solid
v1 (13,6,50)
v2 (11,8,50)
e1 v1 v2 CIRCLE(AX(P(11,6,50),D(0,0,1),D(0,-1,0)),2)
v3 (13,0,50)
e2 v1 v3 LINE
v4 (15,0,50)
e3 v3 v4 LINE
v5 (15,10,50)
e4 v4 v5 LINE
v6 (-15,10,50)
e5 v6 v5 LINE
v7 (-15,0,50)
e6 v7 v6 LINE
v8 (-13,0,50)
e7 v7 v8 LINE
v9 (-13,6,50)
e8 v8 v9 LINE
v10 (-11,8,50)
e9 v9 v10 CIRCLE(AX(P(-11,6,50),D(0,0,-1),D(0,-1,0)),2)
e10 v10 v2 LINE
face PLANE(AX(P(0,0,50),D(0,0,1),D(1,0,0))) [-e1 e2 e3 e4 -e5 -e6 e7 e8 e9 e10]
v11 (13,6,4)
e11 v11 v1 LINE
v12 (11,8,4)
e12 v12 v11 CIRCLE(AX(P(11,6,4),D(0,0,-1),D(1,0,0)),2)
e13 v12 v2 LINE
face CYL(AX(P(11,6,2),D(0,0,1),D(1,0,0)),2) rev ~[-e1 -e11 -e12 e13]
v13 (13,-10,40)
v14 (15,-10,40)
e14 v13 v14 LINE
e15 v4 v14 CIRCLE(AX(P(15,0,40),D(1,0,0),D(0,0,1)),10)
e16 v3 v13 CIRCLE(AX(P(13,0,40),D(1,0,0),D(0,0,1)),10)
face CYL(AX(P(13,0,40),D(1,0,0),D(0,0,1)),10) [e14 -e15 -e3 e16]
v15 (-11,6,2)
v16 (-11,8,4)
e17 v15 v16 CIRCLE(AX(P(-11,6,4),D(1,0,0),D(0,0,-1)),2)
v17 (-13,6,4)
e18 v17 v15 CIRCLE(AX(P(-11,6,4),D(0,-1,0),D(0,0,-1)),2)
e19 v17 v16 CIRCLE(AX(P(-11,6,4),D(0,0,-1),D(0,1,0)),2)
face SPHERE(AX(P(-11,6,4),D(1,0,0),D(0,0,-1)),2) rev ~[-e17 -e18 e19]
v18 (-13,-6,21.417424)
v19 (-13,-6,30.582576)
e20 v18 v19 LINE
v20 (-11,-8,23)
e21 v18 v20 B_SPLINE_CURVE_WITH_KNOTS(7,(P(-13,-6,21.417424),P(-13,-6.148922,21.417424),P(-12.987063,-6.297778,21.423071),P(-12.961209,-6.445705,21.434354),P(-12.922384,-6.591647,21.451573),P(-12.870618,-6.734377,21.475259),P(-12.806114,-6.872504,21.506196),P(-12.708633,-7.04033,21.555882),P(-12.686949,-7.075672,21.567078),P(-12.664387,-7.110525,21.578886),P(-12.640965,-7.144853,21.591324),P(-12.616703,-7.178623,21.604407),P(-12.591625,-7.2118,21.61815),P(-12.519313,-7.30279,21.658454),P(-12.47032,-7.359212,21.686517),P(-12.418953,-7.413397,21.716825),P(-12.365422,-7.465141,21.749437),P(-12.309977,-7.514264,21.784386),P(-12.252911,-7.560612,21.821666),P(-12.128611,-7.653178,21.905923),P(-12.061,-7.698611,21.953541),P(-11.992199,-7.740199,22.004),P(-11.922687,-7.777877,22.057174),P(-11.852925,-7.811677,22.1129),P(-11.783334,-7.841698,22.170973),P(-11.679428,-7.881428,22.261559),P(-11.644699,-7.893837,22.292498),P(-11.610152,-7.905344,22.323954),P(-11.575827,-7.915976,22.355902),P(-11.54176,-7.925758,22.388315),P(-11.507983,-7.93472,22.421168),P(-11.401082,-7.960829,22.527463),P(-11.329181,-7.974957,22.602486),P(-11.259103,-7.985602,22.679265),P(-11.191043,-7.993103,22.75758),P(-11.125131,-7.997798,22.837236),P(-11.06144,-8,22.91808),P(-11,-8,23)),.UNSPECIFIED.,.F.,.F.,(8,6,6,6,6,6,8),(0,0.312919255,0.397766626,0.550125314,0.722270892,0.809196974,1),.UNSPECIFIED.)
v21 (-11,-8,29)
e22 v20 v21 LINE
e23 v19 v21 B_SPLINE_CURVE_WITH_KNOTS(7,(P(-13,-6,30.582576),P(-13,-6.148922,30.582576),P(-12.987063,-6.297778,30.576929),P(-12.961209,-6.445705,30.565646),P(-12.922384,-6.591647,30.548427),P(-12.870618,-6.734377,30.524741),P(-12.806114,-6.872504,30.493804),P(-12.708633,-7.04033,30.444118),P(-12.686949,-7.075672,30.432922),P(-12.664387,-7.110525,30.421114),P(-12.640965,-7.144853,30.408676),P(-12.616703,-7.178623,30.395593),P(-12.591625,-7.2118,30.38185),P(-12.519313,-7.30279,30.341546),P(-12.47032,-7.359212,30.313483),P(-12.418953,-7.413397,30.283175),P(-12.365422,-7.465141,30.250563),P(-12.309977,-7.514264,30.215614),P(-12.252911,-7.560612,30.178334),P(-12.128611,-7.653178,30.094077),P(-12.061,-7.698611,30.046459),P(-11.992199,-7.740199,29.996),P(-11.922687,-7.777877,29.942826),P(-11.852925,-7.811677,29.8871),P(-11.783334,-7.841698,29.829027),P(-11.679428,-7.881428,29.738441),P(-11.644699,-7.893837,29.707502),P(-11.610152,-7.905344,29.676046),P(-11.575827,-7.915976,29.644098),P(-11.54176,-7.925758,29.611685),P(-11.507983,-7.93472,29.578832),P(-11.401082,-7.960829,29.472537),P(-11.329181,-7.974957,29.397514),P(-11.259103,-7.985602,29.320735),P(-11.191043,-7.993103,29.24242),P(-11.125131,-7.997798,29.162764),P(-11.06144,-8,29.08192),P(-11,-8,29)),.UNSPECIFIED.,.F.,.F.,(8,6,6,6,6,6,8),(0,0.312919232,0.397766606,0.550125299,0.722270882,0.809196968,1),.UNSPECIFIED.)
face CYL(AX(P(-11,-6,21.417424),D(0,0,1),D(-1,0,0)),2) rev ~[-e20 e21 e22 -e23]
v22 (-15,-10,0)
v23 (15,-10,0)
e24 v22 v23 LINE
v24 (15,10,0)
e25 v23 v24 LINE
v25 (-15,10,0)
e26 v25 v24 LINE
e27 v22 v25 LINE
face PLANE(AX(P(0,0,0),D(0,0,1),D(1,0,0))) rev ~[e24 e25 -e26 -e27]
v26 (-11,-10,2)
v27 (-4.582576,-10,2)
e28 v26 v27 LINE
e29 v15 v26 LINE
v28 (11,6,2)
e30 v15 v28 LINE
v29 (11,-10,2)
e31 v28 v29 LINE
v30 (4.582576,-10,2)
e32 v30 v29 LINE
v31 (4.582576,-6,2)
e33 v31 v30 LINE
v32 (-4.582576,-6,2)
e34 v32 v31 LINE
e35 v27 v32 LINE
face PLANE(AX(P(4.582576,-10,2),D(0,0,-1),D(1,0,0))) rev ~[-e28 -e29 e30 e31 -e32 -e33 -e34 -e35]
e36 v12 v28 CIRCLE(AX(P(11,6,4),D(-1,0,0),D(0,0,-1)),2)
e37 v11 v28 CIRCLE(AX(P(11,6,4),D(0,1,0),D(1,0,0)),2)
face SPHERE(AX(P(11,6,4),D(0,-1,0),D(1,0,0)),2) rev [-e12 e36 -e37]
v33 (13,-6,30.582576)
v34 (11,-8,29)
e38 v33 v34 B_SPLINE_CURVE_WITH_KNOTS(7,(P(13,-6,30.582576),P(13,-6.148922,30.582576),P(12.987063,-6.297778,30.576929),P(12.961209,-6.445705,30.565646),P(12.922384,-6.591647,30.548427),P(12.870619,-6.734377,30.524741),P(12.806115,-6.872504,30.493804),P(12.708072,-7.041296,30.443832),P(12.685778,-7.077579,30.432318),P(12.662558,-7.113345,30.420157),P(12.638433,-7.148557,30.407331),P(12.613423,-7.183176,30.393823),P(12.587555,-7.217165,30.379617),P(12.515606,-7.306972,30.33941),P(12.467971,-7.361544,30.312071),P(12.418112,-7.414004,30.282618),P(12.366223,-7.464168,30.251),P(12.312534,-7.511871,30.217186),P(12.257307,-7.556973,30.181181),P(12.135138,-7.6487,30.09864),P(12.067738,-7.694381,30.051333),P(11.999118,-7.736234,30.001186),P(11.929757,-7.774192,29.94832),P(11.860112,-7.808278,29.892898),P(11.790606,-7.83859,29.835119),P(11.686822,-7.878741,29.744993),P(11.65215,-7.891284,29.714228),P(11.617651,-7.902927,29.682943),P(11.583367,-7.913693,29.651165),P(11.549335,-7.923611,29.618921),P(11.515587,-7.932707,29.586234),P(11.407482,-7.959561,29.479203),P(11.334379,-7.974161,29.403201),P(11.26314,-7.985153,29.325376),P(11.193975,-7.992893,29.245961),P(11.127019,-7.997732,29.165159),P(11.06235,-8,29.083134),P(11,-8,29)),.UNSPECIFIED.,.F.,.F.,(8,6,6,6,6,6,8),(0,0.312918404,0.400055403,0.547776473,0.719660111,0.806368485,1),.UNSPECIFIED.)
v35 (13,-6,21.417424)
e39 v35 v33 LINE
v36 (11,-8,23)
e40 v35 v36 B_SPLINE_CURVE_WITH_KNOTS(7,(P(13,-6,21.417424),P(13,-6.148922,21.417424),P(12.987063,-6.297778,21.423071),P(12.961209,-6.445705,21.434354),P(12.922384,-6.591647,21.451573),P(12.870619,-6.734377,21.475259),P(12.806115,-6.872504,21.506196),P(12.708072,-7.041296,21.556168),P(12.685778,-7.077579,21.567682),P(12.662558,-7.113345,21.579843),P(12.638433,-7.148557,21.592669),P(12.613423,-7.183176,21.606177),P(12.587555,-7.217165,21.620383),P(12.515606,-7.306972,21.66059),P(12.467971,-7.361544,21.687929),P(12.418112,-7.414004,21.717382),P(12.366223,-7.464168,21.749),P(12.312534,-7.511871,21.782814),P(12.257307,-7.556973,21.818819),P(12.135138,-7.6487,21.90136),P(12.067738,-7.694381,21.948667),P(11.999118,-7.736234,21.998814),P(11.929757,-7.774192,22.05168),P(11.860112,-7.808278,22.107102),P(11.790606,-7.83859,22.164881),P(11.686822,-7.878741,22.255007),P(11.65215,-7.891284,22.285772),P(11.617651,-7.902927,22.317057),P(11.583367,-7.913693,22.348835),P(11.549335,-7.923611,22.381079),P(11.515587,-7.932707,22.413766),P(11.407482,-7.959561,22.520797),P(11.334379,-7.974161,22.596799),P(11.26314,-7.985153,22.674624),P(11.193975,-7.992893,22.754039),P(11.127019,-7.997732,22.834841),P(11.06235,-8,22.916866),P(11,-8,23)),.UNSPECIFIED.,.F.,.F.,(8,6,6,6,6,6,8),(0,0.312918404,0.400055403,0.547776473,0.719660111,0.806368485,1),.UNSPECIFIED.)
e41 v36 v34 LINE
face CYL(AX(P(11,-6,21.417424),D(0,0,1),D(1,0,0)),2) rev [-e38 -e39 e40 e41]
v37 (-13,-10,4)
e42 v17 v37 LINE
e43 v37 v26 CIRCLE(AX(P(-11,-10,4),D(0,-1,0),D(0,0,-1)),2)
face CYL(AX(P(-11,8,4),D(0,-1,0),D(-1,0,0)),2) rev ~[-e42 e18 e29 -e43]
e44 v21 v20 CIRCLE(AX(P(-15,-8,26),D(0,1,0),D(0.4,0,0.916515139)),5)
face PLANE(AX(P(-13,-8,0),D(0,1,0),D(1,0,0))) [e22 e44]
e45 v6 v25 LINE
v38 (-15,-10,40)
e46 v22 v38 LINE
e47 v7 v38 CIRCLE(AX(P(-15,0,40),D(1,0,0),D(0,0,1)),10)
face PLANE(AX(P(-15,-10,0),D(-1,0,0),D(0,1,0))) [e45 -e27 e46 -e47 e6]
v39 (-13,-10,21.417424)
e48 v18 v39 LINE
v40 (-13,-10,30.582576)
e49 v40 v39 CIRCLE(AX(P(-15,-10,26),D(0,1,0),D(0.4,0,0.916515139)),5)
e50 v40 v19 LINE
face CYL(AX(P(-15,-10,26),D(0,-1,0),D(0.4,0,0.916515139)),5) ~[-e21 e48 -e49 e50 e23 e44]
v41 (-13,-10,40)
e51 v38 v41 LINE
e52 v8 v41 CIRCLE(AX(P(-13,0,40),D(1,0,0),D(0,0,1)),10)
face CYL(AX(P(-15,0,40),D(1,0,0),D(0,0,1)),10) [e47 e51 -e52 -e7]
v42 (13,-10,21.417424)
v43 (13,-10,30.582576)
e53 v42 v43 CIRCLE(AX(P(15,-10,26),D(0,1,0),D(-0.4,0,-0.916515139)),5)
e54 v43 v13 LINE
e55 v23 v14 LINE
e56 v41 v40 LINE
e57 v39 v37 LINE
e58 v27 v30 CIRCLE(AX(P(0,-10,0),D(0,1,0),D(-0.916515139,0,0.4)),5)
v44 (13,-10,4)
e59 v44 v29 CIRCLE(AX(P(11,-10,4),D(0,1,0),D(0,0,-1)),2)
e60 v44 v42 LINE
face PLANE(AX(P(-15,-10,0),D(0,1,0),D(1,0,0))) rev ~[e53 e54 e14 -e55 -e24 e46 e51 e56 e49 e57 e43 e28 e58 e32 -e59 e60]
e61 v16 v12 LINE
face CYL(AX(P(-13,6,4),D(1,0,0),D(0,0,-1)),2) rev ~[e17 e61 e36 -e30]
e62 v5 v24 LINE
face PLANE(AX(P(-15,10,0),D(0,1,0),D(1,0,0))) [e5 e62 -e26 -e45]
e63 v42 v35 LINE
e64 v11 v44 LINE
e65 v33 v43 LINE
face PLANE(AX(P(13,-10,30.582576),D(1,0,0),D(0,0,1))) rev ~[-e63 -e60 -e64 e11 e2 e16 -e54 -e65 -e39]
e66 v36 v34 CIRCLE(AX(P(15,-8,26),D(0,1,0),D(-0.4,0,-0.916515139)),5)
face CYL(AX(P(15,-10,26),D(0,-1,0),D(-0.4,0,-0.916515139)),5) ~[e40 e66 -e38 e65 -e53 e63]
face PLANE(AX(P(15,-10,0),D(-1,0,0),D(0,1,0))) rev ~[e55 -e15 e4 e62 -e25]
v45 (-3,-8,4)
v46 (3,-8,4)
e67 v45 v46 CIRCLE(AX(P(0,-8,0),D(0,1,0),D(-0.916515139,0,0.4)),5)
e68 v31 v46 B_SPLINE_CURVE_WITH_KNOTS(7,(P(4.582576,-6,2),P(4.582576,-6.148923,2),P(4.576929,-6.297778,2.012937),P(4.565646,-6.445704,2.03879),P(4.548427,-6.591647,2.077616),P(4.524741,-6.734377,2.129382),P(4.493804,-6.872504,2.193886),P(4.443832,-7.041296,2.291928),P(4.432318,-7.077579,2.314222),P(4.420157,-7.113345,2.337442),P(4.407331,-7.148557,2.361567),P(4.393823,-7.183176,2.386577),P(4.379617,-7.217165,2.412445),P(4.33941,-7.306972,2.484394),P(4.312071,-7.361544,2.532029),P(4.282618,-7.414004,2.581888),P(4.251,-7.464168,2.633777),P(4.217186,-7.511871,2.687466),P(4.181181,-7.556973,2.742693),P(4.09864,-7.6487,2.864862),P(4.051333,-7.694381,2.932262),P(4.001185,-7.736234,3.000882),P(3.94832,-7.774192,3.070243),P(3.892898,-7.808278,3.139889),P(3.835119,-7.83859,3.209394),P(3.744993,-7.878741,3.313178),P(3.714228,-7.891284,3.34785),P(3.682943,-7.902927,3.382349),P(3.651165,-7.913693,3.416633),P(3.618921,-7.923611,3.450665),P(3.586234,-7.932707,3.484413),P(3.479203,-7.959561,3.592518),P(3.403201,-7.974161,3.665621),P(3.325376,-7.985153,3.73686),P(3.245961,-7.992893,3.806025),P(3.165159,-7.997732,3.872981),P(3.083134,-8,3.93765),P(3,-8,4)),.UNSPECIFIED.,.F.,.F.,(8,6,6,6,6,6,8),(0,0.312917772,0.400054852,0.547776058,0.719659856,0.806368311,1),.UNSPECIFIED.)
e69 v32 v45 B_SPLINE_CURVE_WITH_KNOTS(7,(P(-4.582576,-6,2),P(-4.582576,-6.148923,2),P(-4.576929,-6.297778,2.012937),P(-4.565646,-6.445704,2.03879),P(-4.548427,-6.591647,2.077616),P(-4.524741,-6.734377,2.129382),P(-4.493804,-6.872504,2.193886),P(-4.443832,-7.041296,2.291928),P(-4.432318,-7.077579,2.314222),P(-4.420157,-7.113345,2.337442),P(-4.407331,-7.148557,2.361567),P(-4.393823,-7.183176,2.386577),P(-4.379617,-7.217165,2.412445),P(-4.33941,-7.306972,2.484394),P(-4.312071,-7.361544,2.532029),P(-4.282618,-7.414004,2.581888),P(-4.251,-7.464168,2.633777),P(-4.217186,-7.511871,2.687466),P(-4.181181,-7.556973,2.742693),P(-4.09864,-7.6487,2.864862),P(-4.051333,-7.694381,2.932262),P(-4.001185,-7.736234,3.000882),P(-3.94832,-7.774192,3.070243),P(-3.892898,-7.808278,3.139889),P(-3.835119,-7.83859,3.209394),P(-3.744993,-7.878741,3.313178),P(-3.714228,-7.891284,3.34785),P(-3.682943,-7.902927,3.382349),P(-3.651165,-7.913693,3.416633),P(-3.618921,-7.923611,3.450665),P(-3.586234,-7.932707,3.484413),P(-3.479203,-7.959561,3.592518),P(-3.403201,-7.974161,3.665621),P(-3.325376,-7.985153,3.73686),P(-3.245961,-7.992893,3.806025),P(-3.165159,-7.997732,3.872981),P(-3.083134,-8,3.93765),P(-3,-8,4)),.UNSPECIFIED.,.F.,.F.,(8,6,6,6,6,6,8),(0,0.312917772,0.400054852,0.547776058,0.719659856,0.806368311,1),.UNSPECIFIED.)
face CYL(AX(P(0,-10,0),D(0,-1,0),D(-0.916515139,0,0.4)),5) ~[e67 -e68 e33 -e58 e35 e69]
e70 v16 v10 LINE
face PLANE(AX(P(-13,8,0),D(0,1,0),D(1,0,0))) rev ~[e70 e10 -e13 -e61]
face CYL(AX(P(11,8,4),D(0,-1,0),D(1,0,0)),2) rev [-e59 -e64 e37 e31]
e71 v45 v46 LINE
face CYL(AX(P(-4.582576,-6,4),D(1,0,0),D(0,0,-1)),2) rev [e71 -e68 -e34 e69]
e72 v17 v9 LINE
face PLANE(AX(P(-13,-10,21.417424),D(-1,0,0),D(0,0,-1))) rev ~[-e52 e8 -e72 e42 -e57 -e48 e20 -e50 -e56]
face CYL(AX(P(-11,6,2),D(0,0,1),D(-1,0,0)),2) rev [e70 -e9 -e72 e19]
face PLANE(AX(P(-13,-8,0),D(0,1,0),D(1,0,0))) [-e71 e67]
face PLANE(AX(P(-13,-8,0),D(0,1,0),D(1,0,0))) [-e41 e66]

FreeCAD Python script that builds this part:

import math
import FreeCAD as App
import Part
import Sketcher

V = App.Vector


def edges_at(feature, points):
    """Names of the edges that pass closest to the given points."""
    edges = feature.Shape.Edges
    near = lambda p: min(range(len(edges)), key=lambda i: edges[i].distToShape(Part.Vertex(*p))[0])
    return sorted({f"Edge{near(p) + 1}" for p in points})

doc = App.newDocument("Part")
body = doc.addObject("PartDesign::Body", "Body")

# Sketch on XY plane
sketch1 = body.newObject("Sketcher::SketchObject", "Sketch")
sketch1.AttachmentSupport = (doc.getObject("XY_Plane"), [""])
sketch1.MapMode = "FlatFace"
sketch1.addGeometry([
    Part.LineSegment(V(-15, 10, 0), V(-15, -10, 0)),  # 0
    Part.LineSegment(V(-15, -10, 0), V(15, -10, 0)),  # 1
    Part.LineSegment(V(15, -10, 0), V(15, 10, 0)),  # 2
    Part.LineSegment(V(15, 10, 0), V(-15, 10, 0)),  # 3
    Part.LineSegment(V(13, -8, 0), V(-13, -8, 0)),  # 4
    Part.LineSegment(V(-13, -8, 0), V(-13, 8, 0)),  # 5
    Part.LineSegment(V(-13, 8, 0), V(13, 8, 0)),  # 6
    Part.LineSegment(V(13, 8, 0), V(13, -8, 0)),  # 7
], False)
sketch1.addConstraint([
    Sketcher.Constraint("Coincident", 0, 2, 1, 1),
    Sketcher.Constraint("Coincident", 1, 2, 2, 1),
    Sketcher.Constraint("Coincident", 2, 2, 3, 1),
    Sketcher.Constraint("Coincident", 3, 2, 0, 1),
    Sketcher.Constraint("Coincident", 4, 2, 5, 1),
    Sketcher.Constraint("Coincident", 5, 2, 6, 1),
    Sketcher.Constraint("Coincident", 6, 2, 7, 1),
    Sketcher.Constraint("Coincident", 7, 2, 4, 1),
    Sketcher.Constraint("Vertical", 0),
    Sketcher.Constraint("Horizontal", 1),
    Sketcher.Constraint("Vertical", 2),
    Sketcher.Constraint("Horizontal", 3),
    Sketcher.Constraint("Horizontal", 4),
    Sketcher.Constraint("Vertical", 5),
    Sketcher.Constraint("Horizontal", 6),
    Sketcher.Constraint("Vertical", 7),
    Sketcher.Constraint("Symmetric", 0, 2, 2, 2, -1, 1),
    Sketcher.Constraint("Symmetric", 4, 2, 6, 2, -1, 1),
    Sketcher.Constraint("DistanceX", 1, 1, 1, 2, 30.0),
    Sketcher.Constraint("DistanceX", 4, 2, 4, 1, 26.0),
    Sketcher.Constraint("DistanceY", 0, 2, 0, 1, 20.0),
    Sketcher.Constraint("DistanceY", 5, 1, 5, 2, 16.0),
])
pad1 = body.newObject("PartDesign::Pad", "Pad")
pad1.Profile = sketch1
pad1.Length = 50

# Sketch on XY plane
sketch2 = body.newObject("Sketcher::SketchObject", "Sketch001")
sketch2.AttachmentSupport = (doc.getObject("XY_Plane"), [""])
sketch2.MapMode = "FlatFace"
sketch2.addGeometry([
    Part.LineSegment(V(-15, 10, 0), V(-15, -10, 0)),
    Part.LineSegment(V(-15, -10, 0), V(15, -10, 0)),
    Part.LineSegment(V(15, -10, 0), V(15, 10, 0)),
    Part.LineSegment(V(15, 10, 0), V(-15, 10, 0)),
], False)
sketch2.addConstraint([
    Sketcher.Constraint("Coincident", 0, 2, 1, 1),
    Sketcher.Constraint("Coincident", 1, 2, 2, 1),
    Sketcher.Constraint("Coincident", 2, 2, 3, 1),
    Sketcher.Constraint("Coincident", 3, 2, 0, 1),
    Sketcher.Constraint("Vertical", 0),
    Sketcher.Constraint("Horizontal", 1),
    Sketcher.Constraint("Vertical", 2),
    Sketcher.Constraint("Horizontal", 3),
    Sketcher.Constraint("Symmetric", 0, 2, 2, 2, -1, 1),
    Sketcher.Constraint("DistanceX", 1, 1, 1, 2, 30.0),
    Sketcher.Constraint("DistanceY", 0, 2, 0, 1, 20.0),
])
pad2 = body.newObject("PartDesign::Pad", "Pad001")
pad2.Profile = sketch2
pad2.Length = 2

# Sketch on XZ plane
sketch3 = body.newObject("Sketcher::SketchObject", "Sketch002")
sketch3.AttachmentSupport = (doc.getObject("XZ_Plane"), [""])
sketch3.MapMode = "FlatFace"
sketch3.AttachmentOffset = App.Placement(V(0, 0, 10), App.Rotation())
sketch3.addGeometry([
    Part.LineSegment(V(13, 50, 0), V(-13, 50, 0)),  # 0
    Part.LineSegment(V(-13, 50, 0), V(-13, 31, 0)),  # 1
    Part.ArcOfCircle(Part.Circle(V(-15, 26, 0), V(0, 0, 1), 5), math.radians(-66), math.radians(66)),  # 2
    Part.LineSegment(V(-13, 21, 0), V(-13, 2, 0)),  # 3
    Part.LineSegment(V(-13, 2, 0), V(-5, 2, 0)),  # 4
    Part.ArcOfCircle(Part.Circle(V(0, 0, 0), V(0, 0, 1), 5), math.radians(24), math.radians(156)),  # 5
    Part.LineSegment(V(5, 2, 0), V(13, 2, 0)),  # 6
    Part.LineSegment(V(13, 2, 0), V(13, 21, 0)),  # 7
    Part.ArcOfCircle(Part.Circle(V(15, 26, 0), V(0, 0, 1), 5), math.radians(114), math.radians(246)),  # 8
    Part.LineSegment(V(13, 31, 0), V(13, 50, 0)),  # 9
], False)
sketch3.addConstraint([
    Sketcher.Constraint("Coincident", 0, 2, 1, 1),
    Sketcher.Constraint("Coincident", 1, 2, 2, 2),
    Sketcher.Constraint("Coincident", 2, 1, 3, 1),
    Sketcher.Constraint("Coincident", 3, 2, 4, 1),
    Sketcher.Constraint("Coincident", 4, 2, 5, 2),
    Sketcher.Constraint("Coincident", 5, 1, 6, 1),
    Sketcher.Constraint("Coincident", 6, 2, 7, 1),
    Sketcher.Constraint("Coincident", 7, 2, 8, 2),
    Sketcher.Constraint("Coincident", 8, 1, 9, 1),
    Sketcher.Constraint("Coincident", 9, 2, 0, 1),
    Sketcher.Constraint("Horizontal", 0),
    Sketcher.Constraint("Vertical", 1),
    Sketcher.Constraint("Vertical", 3),
    Sketcher.Constraint("Horizontal", 4),
    Sketcher.Constraint("Horizontal", 6),
    Sketcher.Constraint("Vertical", 7),
    Sketcher.Constraint("Vertical", 9),
    Sketcher.Constraint("Coincident", 5, 3, -1, 1),
    Sketcher.Constraint("Equal", 2, 5),
    Sketcher.Constraint("Equal", 5, 8),
    Sketcher.Constraint("Symmetric", 2, 3, 8, 3, -2),
    Sketcher.Constraint("Symmetric", 3, 2, 6, 2, -2),
    Sketcher.Constraint("Horizontal", 1, 2, 8, 1),
    Sketcher.Constraint("Vertical", 1, 2, 2, 1),
    Sketcher.Constraint("Equal", 1, 3),
    Sketcher.Constraint("Radius", 2, 5.0),
    Sketcher.Constraint("DistanceX", 0, 2, 0, 1, 26.0),
    Sketcher.Constraint("DistanceX", 2, 3, -1, 1, 15.0),
    Sketcher.Constraint("DistanceY", -1, 1, 2, 3, 26.0),
    Sketcher.Constraint("DistanceY", -1, 1, 0, 2, 50.0),
])
pocket1 = body.newObject("PartDesign::Pocket", "Pocket")
pocket1.Profile = sketch3
pocket1.Length = 2
doc.recompute()

fillet = body.newObject("PartDesign::Fillet", "Fillet")
fillet.Base = (pocket1, edges_at(pocket1, [(14, -10, 50), (-14, -10, 50)]))
fillet.Radius = 10
doc.recompute()

fillet2 = body.newObject("PartDesign::Fillet", "Fillet001")
fillet2.Base = (fillet, edges_at(fillet, [
    (13, -1, 2),
    (13, 8, 26),
    (0, 8, 2),
    (-13, -1, 2),
    (-13, 8, 26),
    (13, -8, 26),
    (-13, -8, 26),
    (0, -8, 2),
]))
fillet2.Radius = 2

doc.recompute()
